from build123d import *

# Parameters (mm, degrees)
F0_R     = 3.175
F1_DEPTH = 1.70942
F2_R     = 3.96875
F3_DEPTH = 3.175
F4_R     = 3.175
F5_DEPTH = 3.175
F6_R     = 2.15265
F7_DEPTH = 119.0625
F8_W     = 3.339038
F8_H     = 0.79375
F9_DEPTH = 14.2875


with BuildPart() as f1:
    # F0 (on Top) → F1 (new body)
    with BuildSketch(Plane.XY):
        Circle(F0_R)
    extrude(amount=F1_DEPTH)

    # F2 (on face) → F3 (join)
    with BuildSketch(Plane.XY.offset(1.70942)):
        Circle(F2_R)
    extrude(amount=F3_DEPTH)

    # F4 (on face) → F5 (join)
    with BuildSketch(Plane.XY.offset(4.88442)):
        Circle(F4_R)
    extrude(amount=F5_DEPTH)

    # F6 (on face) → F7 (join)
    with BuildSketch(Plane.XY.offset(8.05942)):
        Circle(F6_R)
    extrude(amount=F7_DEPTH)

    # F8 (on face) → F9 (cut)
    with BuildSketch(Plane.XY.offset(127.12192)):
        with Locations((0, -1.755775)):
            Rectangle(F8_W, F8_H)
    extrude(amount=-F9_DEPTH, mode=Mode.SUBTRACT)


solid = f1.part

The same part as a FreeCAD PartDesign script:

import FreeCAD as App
import Part
import Sketcher

V = App.Vector
Q = App.Units.Quantity

doc = App.newDocument("Part")
body = doc.addObject("PartDesign::Body", "Body")

# Sketch on XY plane
sketch1 = body.newObject("Sketcher::SketchObject", "Sketch")
sketch1.AttachmentSupport = (doc.getObject("XY_Plane"), [""])
sketch1.MapMode = "FlatFace"
sketch1.addGeometry(Part.Circle(V(0, 0, 0), V(0, 0, 1), 3.2), False)
sketch1.addConstraint([
    Sketcher.Constraint("Coincident", 0, 3, -1, 1),
    Sketcher.Constraint("Diameter", 0, Q("0.25 in")),
])
pad1 = body.newObject("PartDesign::Pad", "Pad")
pad1.Profile = sketch1
pad1.Length = Q("0.0673 in")

# Sketch on XY plane
sketch2 = body.newObject("Sketcher::SketchObject", "Sketch001")
sketch2.AttachmentSupport = (doc.getObject("XY_Plane"), [""])
sketch2.MapMode = "FlatFace"
sketch2.AttachmentOffset = App.Placement(V(0, 0, 0.0673 * 25.4), App.Rotation())
sketch2.addGeometry(Part.Circle(V(0, 0, 0), V(0, 0, 1), 4), False)
sketch2.addConstraint([
    Sketcher.Constraint("Coincident", 0, 3, -1, 1),
    Sketcher.Constraint("Diameter", 0, Q("0.3125 in")),
])
pad2 = body.newObject("PartDesign::Pad", "Pad001")
pad2.Profile = sketch2
pad2.Length = Q("0.125 in")

# Sketch on XY plane
sketch3 = body.newObject("Sketcher::SketchObject", "Sketch002")
sketch3.AttachmentSupport = (doc.getObject("XY_Plane"), [""])
sketch3.MapMode = "FlatFace"
sketch3.AttachmentOffset = App.Placement(V(0, 0, 0.1923 * 25.4), App.Rotation())
sketch3.addGeometry(Part.Circle(V(0, 0, 0), V(0, 0, 1), 3.2), False)
sketch3.addConstraint([
    Sketcher.Constraint("Coincident", 0, 3, -1, 1),
    Sketcher.Constraint("Diameter", 0, Q("0.25 in")),
])
pad3 = body.newObject("PartDesign::Pad", "Pad002")
pad3.Profile = sketch3
pad3.Length = Q("0.125 in")

# Sketch on XY plane
sketch4 = body.newObject("Sketcher::SketchObject", "Sketch003")
sketch4.AttachmentSupport = (doc.getObject("XY_Plane"), [""])
sketch4.MapMode = "FlatFace"
sketch4.AttachmentOffset = App.Placement(V(0, 0, 0.3173 * 25.4), App.Rotation())
sketch4.addGeometry(Part.Circle(V(0, 0, 0), V(0, 0, 1), 2.2), False)
sketch4.addConstraint([
    Sketcher.Constraint("Coincident", 0, 3, -1, 1),
    Sketcher.Constraint("Diameter", 0, Q("0.1695 in")),
])
pad4 = body.newObject("PartDesign::Pad", "Pad003")
pad4.Profile = sketch4
pad4.Length = Q("4.6875 in")

# Sketch on XY plane
sketch5 = body.newObject("Sketcher::SketchObject", "Sketch004")
sketch5.AttachmentSupport = (doc.getObject("XY_Plane"), [""])
sketch5.MapMode = "FlatFace"
sketch5.AttachmentOffset = App.Placement(V(0, 0, 5.0048 * 25.4), App.Rotation())
sketch5.addGeometry([
    Part.LineSegment(V(-1.7, -1.4, 0), V(-1.7, -2.2, 0)),
    Part.LineSegment(V(-1.7, -2.2, 0), V(1.7, -2.2, 0)),
    Part.LineSegment(V(1.7, -2.2, 0), V(1.7, -1.4, 0)),
    Part.LineSegment(V(1.7, -1.4, 0), V(-1.7, -1.4, 0)),
], False)
sketch5.addConstraint([
    Sketcher.Constraint("Coincident", 0, 2, 1, 1),
    Sketcher.Constraint("Coincident", 1, 2, 2, 1),
    Sketcher.Constraint("Coincident", 2, 2, 3, 1),
    Sketcher.Constraint("Coincident", 3, 2, 0, 1),
    Sketcher.Constraint("Vertical", 0),
    Sketcher.Constraint("Horizontal", 1),
    Sketcher.Constraint("Vertical", 2),
    Sketcher.Constraint("Horizontal", 3),
    Sketcher.Constraint("DistanceY", 0, 2, 0, 1, Q("0.03125 in")),
    Sketcher.Constraint("DistanceY", 2, 2, -1, 1, Q("0.0535 in")),
    Sketcher.Constraint("DistanceX", 1, 1, 1, 2, Q("3.339038 mm")),
    Sketcher.Constraint("DistanceX", 0, 2, -1, 1, Q("1.669519 mm")),
])
pocket1 = body.newObject("PartDesign::Pocket", "Pocket")
pocket1.Profile = sketch5
pocket1.Length = Q("0.5625 in")

doc.recompute()
